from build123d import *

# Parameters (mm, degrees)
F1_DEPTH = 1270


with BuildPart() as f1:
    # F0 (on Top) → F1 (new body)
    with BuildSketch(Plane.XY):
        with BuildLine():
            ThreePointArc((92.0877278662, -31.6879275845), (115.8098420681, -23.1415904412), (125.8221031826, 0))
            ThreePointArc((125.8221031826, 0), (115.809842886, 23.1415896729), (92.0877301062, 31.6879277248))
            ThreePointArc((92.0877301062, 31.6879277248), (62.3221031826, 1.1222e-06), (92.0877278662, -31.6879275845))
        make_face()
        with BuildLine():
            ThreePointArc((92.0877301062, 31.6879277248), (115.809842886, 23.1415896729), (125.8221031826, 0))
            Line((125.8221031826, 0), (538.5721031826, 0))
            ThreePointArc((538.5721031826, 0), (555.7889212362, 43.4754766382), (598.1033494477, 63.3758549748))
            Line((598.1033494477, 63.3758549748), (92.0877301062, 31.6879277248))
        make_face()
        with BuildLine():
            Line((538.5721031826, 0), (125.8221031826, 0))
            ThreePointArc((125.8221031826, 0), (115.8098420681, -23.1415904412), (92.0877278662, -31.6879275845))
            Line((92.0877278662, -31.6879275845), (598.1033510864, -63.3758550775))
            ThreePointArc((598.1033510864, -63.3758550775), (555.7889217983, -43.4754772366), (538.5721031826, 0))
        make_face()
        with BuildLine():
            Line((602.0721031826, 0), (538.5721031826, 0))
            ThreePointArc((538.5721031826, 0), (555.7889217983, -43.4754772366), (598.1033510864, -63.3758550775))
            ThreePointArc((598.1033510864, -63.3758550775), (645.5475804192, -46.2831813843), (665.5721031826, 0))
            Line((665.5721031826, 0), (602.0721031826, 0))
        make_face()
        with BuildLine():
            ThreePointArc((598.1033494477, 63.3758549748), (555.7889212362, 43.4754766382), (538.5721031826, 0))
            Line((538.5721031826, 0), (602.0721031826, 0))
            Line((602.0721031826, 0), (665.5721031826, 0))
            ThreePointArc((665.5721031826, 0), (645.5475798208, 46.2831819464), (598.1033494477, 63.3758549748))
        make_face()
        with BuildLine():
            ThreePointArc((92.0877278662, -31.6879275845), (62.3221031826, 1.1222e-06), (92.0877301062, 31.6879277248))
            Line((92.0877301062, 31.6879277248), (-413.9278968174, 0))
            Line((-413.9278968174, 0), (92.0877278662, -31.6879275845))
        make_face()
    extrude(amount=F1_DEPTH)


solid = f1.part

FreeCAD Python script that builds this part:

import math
import FreeCAD as App
import Part
import Sketcher
Q = App.Units.Quantity

doc = App.newDocument("Part")
params = doc.addObject("Spreadsheet::Sheet", "Params")
for row, (alias, value) in enumerate([
    ("sketch1_radius", "2.5 in"),
    ("pad1_length", "50 in"),
], start=1):
    params.set(f"A{row}", alias)
    params.set(f"B{row}", "=" + value)
    params.setAlias(f"B{row}", alias)

body = doc.addObject("PartDesign::Body", "Body")

# Sketch on XY plane
sketch1 = doc.addObject("Sketcher::SketchObject", "Sketch")
body.addObject(sketch1)
sketch1.AttachmentSupport = (doc.XY_Plane, [""])
sketch1.MapMode = "FlatFace"
sketch1.addGeometry([
    Part.LineSegment(App.Vector(598, 63, 0), App.Vector(-414, 0, 0)),
    Part.LineSegment(App.Vector(-414, 0, 0), App.Vector(598, -63, 0)),
    Part.ArcOfCircle(Part.Circle(App.Vector(602, 0, 0), App.Vector(0, 0, 1), 64), math.radians(-94), math.radians(0)),
    Part.ArcOfCircle(Part.Circle(App.Vector(602, 0, 0), App.Vector(0, 0, 1), 64), math.radians(0), math.radians(94)),
], False)
sketch1.addConstraint([
    Sketcher.Constraint("Coincident", 0, 2, 1, 1),
    Sketcher.Constraint("Tangent", 1, 2, 2, 1),
    Sketcher.Constraint("Tangent", 2, 2, 3, 1),
    Sketcher.Constraint("Tangent", 3, 2, 0, 1),
    Sketcher.Constraint("Equal", 2, 3),
    Sketcher.Constraint("PointOnObject", 2, 3, -1),
    Sketcher.Constraint("PointOnObject", 0, 2, -1),
    Sketcher.Constraint("PointOnObject", 2, 2, -1),
    Sketcher.Constraint("Radius", 2, Q("2.5 in")),
    Sketcher.Constraint("DistanceX", 0, 2, 2, 3, Q("40 in")),
    Sketcher.Constraint("DistanceX", -1, 1, 1, 2, 598.103351),
])
sketch1.setExpression("Constraints[8]", "Params.sketch1_radius")
pad1 = doc.addObject("PartDesign::Pad", "Pad")
body.addObject(pad1)
pad1.Profile = sketch1
pad1.setExpression("Length", "Params.pad1_length")

doc.recompute()
